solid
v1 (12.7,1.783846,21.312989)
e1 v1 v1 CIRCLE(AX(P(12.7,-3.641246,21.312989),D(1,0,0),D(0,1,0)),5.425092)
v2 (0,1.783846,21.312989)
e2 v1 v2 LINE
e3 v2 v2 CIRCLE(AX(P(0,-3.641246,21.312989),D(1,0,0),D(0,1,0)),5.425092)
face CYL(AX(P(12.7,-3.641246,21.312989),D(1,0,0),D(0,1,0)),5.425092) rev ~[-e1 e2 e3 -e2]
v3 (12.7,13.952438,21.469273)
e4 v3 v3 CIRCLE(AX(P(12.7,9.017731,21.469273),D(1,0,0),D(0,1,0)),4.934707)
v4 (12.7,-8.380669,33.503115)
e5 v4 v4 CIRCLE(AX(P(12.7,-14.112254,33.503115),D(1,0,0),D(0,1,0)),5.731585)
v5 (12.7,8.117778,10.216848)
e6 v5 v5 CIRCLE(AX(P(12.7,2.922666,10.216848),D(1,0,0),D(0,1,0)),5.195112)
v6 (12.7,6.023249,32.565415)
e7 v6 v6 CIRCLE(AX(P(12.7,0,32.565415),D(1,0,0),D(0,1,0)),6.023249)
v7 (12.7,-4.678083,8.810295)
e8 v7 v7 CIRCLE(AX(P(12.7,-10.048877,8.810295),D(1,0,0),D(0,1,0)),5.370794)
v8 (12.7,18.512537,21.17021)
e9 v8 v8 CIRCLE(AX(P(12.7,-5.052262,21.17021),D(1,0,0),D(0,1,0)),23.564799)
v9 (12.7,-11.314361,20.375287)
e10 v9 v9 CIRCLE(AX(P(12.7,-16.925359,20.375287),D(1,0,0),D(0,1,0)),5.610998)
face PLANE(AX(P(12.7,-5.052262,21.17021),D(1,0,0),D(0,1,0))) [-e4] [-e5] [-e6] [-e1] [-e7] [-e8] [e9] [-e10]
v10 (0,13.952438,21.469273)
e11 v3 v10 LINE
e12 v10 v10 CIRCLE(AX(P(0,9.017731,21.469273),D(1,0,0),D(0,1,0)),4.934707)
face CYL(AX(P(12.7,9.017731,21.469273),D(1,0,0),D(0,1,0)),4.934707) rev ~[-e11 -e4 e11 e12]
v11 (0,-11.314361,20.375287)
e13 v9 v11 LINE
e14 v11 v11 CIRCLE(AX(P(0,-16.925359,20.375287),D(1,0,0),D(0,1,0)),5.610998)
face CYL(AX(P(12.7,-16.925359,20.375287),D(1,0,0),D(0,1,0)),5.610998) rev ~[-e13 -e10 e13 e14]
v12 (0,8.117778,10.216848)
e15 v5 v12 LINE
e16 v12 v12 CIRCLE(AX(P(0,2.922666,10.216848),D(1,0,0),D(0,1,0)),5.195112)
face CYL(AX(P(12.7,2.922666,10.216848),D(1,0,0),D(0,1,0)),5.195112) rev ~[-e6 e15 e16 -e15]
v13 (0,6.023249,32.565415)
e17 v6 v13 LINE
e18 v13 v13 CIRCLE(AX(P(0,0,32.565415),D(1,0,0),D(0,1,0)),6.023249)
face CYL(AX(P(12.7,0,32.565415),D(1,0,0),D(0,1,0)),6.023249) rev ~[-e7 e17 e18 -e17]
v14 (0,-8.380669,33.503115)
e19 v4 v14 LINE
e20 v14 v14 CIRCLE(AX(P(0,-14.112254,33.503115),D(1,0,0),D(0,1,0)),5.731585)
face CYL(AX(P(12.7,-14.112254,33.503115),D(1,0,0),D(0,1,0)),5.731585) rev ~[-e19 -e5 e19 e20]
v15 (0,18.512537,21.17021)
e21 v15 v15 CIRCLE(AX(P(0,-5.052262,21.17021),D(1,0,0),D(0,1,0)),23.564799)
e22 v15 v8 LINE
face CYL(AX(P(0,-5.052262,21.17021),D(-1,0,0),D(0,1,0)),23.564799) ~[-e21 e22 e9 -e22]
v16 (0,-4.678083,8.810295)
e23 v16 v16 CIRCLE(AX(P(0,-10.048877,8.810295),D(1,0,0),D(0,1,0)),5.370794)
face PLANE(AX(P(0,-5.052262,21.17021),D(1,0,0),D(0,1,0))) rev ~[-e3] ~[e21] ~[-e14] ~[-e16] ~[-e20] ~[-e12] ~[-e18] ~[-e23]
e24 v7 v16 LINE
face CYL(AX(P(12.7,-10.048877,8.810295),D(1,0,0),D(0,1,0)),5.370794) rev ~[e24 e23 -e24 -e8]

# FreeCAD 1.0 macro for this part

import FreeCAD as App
import Part
import Sketcher
from FreeCAD import Vector
Q = App.Units.Quantity

doc = App.newDocument("Part")
params = doc.addObject("Spreadsheet::Sheet", "Params")
for row, (alias, value) in enumerate([
    ("pad1_length", "0.5 in"),
    ("pocket1_length", "1 in"),
], start=1):
    params.set(f"A{row}", alias)
    params.set(f"B{row}", "=" + value)
    params.setAlias(f"B{row}", alias)

body = doc.addObject("PartDesign::Body", "Body")

sketch1 = body.newObject("Sketcher::SketchObject", "Sketch")
sketch1.AttachmentSupport = (doc.getObject("YZ_Plane"), [""])
sketch1.MapMode = "FlatFace"
sketch1.addGeometry(Part.Circle(Vector(-5, 21, 0), Vector(0, 0, 1), 24), False)
sketch1.addConstraint(Sketcher.Constraint("Diameter", 0, Q("47.129598 mm")))
sketch1.addConstraint(Sketcher.Constraint("DistanceX", 0, 3, -1, 1, Q("5.052262 mm")))
sketch1.addConstraint(Sketcher.Constraint("DistanceY", -1, 1, 0, 3, Q("21.17021 mm")))
pad1 = body.newObject("PartDesign::Pad", "Pad")
pad1.Profile = sketch1
pad1.setExpression("Length", "Params.pad1_length")

sketch2 = body.newObject("Sketcher::SketchObject", "Sketch001")
sketch2.AttachmentSupport = (doc.getObject("YZ_Plane"), [""])
sketch2.MapMode = "FlatFace"
sketch2.AttachmentOffset = App.Placement(Vector(0, 0, 0.5 * 25.4), App.Rotation())
sketch2.addGeometry(Part.Circle(Vector(-14.1, 33.5, 0), Vector(0, 0, 1), 5.7), False)
sketch2.addGeometry(Part.Circle(Vector(0, 32.6, 0), Vector(0, 0, 1), 6), False)
sketch2.addGeometry(Part.Circle(Vector(-16.9, 20.4, 0), Vector(0, 0, 1), 5.6), False)
sketch2.addGeometry(Part.Circle(Vector(-3.6, 21.3, 0), Vector(0, 0, 1), 5.4), False)
sketch2.addGeometry(Part.Circle(Vector(9, 21.5, 0), Vector(0, 0, 1), 4.9), False)
sketch2.addGeometry(Part.Circle(Vector(2.9, 10.2, 0), Vector(0, 0, 1), 5.2), False)
sketch2.addGeometry(Part.Circle(Vector(-10, 8.8, 0), Vector(0, 0, 1), 5.4), False)
sketch2.addConstraint(Sketcher.Constraint("PointOnObject", 1, 3, -2))
sketch2.addConstraint(Sketcher.Constraint("Diameter", 0, Q("11.46317 mm")))
sketch2.addConstraint(Sketcher.Constraint("Diameter", 1, Q("12.046498 mm")))
sketch2.addConstraint(Sketcher.Constraint("Diameter", 2, Q("11.221996 mm")))
sketch2.addConstraint(Sketcher.Constraint("Diameter", 3, Q("10.850184 mm")))
sketch2.addConstraint(Sketcher.Constraint("Diameter", 4, Q("9.869414 mm")))
sketch2.addConstraint(Sketcher.Constraint("Diameter", 5, Q("10.390224 mm")))
sketch2.addConstraint(Sketcher.Constraint("Diameter", 6, Q("10.741588 mm")))
sketch2.addConstraint(Sketcher.Constraint("DistanceY", 1, 3, 0, 3, Q("0.9377 mm")))
sketch2.addConstraint(Sketcher.Constraint("DistanceX", 2, 3, -1, 1, Q("16.925359 mm")))
sketch2.addConstraint(Sketcher.Constraint("DistanceY", -1, 1, 3, 3, Q("21.312989 mm")))
sketch2.addConstraint(Sketcher.Constraint("DistanceX", -1, 1, 4, 3, Q("9.017731 mm")))
sketch2.addConstraint(Sketcher.Constraint("DistanceY", 2, 3, 0, 3, Q("13.127828 mm")))
sketch2.addConstraint(Sketcher.Constraint("DistanceY", 5, 3, 3, 3, Q("11.096141 mm")))
sketch2.addConstraint(Sketcher.Constraint("DistanceY", 5, 3, 2, 3, Q("10.158439 mm")))
sketch2.addConstraint(Sketcher.Constraint("DistanceX", 0, 3, 5, 3, Q("17.03492 mm")))
sketch2.addConstraint(Sketcher.Constraint("DistanceX", 6, 3, 3, 3, Q("6.407631 mm")))
sketch2.addConstraint(Sketcher.Constraint("DistanceY", 6, 3, 4, 3, Q("12.658978 mm")))
sketch2.addConstraint(Sketcher.Constraint("DistanceY", 6, 3, 0, 3, Q("24.69282 mm")))
sketch2.addConstraint(Sketcher.Constraint("DistanceX", 0, 3, -1, 1, Q("14.112254 mm")))
sketch2.addConstraint(Sketcher.Constraint("DistanceX", 3, 3, -1, 1, Q("3.641246 mm")))
pocket1 = body.newObject("PartDesign::Pocket", "Pocket")
pocket1.Profile = sketch2
pocket1.setExpression("Length", "Params.pocket1_length")

doc.recompute()
